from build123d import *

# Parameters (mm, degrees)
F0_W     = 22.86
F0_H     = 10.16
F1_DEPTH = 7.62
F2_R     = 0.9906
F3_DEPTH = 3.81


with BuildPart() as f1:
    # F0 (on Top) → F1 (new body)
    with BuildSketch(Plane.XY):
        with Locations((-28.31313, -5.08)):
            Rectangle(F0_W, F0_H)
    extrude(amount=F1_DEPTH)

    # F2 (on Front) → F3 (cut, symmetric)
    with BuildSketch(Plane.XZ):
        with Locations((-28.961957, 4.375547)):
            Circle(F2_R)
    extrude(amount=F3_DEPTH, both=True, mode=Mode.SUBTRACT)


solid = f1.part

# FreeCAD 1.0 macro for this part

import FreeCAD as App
import Part
import Sketcher
from FreeCAD import Vector
Q = App.Units.Quantity

doc = App.newDocument("Part")
body = doc.addObject("PartDesign::Body", "Body")

sketch1 = body.newObject("Sketcher::SketchObject", "Sketch")
sketch1.AttachmentSupport = (doc.getObject("XY_Plane"), [""])
sketch1.MapMode = "FlatFace"
sketch1.addGeometry(Part.LineSegment(Vector(-39.74313, 0, 0), Vector(-39.74313, -10.16, 0)), False)
sketch1.addGeometry(Part.LineSegment(Vector(-39.74313, -10.16, 0), Vector(-16.88313, -10.16, 0)), False)
sketch1.addGeometry(Part.LineSegment(Vector(-16.88313, -10.16, 0), Vector(-16.88313, 0, 0)), False)
sketch1.addGeometry(Part.LineSegment(Vector(-16.88313, 0, 0), Vector(-39.74313, 0, 0)), False)
sketch1.addConstraint(Sketcher.Constraint("Coincident", 0, 2, 1, 1))
sketch1.addConstraint(Sketcher.Constraint("Coincident", 1, 2, 2, 1))
sketch1.addConstraint(Sketcher.Constraint("Coincident", 2, 2, 3, 1))
sketch1.addConstraint(Sketcher.Constraint("Coincident", 3, 2, 0, 1))
sketch1.addConstraint(Sketcher.Constraint("Vertical", 0))
sketch1.addConstraint(Sketcher.Constraint("Horizontal", 1))
sketch1.addConstraint(Sketcher.Constraint("Vertical", 2))
sketch1.addConstraint(Sketcher.Constraint("Horizontal", 3))
sketch1.addConstraint(Sketcher.Constraint("PointOnObject", 2, 2, -1))
sketch1.addConstraint(Sketcher.Constraint("DistanceX", 1, 1, 1, 2, Q("0.9 in")))
sketch1.addConstraint(Sketcher.Constraint("DistanceY", 0, 2, 0, 1, Q("0.4 in")))
sketch1.addConstraint(Sketcher.Constraint("DistanceX", 0, 2, -1, 1, Q("39.74313 mm")))
pad1 = body.newObject("PartDesign::Pad", "Pad")
pad1.Profile = sketch1
pad1.Length = Q("0.3 in")

sketch2 = body.newObject("Sketcher::SketchObject", "Sketch001")
sketch2.AttachmentSupport = (doc.getObject("XZ_Plane"), [""])
sketch2.MapMode = "FlatFace"
sketch2.addGeometry(Part.Circle(Vector(-28.961957, 4.375547, 0), Vector(0, 0, 1), 0.9906), False)
sketch2.addConstraint(Sketcher.Constraint("Diameter", 0, Q("0.078 in")))
sketch2.addConstraint(Sketcher.Constraint("DistanceX", 0, 3, -1, 1, Q("28.961957 mm")))
sketch2.addConstraint(Sketcher.Constraint("DistanceY", -1, 1, 0, 3, Q("4.375547 mm")))
pocket1 = body.newObject("PartDesign::Pocket", "Pocket")
pocket1.Profile = sketch2
pocket1.Length = Q("0.3 in")
pocket1.Midplane = True

doc.recompute()
